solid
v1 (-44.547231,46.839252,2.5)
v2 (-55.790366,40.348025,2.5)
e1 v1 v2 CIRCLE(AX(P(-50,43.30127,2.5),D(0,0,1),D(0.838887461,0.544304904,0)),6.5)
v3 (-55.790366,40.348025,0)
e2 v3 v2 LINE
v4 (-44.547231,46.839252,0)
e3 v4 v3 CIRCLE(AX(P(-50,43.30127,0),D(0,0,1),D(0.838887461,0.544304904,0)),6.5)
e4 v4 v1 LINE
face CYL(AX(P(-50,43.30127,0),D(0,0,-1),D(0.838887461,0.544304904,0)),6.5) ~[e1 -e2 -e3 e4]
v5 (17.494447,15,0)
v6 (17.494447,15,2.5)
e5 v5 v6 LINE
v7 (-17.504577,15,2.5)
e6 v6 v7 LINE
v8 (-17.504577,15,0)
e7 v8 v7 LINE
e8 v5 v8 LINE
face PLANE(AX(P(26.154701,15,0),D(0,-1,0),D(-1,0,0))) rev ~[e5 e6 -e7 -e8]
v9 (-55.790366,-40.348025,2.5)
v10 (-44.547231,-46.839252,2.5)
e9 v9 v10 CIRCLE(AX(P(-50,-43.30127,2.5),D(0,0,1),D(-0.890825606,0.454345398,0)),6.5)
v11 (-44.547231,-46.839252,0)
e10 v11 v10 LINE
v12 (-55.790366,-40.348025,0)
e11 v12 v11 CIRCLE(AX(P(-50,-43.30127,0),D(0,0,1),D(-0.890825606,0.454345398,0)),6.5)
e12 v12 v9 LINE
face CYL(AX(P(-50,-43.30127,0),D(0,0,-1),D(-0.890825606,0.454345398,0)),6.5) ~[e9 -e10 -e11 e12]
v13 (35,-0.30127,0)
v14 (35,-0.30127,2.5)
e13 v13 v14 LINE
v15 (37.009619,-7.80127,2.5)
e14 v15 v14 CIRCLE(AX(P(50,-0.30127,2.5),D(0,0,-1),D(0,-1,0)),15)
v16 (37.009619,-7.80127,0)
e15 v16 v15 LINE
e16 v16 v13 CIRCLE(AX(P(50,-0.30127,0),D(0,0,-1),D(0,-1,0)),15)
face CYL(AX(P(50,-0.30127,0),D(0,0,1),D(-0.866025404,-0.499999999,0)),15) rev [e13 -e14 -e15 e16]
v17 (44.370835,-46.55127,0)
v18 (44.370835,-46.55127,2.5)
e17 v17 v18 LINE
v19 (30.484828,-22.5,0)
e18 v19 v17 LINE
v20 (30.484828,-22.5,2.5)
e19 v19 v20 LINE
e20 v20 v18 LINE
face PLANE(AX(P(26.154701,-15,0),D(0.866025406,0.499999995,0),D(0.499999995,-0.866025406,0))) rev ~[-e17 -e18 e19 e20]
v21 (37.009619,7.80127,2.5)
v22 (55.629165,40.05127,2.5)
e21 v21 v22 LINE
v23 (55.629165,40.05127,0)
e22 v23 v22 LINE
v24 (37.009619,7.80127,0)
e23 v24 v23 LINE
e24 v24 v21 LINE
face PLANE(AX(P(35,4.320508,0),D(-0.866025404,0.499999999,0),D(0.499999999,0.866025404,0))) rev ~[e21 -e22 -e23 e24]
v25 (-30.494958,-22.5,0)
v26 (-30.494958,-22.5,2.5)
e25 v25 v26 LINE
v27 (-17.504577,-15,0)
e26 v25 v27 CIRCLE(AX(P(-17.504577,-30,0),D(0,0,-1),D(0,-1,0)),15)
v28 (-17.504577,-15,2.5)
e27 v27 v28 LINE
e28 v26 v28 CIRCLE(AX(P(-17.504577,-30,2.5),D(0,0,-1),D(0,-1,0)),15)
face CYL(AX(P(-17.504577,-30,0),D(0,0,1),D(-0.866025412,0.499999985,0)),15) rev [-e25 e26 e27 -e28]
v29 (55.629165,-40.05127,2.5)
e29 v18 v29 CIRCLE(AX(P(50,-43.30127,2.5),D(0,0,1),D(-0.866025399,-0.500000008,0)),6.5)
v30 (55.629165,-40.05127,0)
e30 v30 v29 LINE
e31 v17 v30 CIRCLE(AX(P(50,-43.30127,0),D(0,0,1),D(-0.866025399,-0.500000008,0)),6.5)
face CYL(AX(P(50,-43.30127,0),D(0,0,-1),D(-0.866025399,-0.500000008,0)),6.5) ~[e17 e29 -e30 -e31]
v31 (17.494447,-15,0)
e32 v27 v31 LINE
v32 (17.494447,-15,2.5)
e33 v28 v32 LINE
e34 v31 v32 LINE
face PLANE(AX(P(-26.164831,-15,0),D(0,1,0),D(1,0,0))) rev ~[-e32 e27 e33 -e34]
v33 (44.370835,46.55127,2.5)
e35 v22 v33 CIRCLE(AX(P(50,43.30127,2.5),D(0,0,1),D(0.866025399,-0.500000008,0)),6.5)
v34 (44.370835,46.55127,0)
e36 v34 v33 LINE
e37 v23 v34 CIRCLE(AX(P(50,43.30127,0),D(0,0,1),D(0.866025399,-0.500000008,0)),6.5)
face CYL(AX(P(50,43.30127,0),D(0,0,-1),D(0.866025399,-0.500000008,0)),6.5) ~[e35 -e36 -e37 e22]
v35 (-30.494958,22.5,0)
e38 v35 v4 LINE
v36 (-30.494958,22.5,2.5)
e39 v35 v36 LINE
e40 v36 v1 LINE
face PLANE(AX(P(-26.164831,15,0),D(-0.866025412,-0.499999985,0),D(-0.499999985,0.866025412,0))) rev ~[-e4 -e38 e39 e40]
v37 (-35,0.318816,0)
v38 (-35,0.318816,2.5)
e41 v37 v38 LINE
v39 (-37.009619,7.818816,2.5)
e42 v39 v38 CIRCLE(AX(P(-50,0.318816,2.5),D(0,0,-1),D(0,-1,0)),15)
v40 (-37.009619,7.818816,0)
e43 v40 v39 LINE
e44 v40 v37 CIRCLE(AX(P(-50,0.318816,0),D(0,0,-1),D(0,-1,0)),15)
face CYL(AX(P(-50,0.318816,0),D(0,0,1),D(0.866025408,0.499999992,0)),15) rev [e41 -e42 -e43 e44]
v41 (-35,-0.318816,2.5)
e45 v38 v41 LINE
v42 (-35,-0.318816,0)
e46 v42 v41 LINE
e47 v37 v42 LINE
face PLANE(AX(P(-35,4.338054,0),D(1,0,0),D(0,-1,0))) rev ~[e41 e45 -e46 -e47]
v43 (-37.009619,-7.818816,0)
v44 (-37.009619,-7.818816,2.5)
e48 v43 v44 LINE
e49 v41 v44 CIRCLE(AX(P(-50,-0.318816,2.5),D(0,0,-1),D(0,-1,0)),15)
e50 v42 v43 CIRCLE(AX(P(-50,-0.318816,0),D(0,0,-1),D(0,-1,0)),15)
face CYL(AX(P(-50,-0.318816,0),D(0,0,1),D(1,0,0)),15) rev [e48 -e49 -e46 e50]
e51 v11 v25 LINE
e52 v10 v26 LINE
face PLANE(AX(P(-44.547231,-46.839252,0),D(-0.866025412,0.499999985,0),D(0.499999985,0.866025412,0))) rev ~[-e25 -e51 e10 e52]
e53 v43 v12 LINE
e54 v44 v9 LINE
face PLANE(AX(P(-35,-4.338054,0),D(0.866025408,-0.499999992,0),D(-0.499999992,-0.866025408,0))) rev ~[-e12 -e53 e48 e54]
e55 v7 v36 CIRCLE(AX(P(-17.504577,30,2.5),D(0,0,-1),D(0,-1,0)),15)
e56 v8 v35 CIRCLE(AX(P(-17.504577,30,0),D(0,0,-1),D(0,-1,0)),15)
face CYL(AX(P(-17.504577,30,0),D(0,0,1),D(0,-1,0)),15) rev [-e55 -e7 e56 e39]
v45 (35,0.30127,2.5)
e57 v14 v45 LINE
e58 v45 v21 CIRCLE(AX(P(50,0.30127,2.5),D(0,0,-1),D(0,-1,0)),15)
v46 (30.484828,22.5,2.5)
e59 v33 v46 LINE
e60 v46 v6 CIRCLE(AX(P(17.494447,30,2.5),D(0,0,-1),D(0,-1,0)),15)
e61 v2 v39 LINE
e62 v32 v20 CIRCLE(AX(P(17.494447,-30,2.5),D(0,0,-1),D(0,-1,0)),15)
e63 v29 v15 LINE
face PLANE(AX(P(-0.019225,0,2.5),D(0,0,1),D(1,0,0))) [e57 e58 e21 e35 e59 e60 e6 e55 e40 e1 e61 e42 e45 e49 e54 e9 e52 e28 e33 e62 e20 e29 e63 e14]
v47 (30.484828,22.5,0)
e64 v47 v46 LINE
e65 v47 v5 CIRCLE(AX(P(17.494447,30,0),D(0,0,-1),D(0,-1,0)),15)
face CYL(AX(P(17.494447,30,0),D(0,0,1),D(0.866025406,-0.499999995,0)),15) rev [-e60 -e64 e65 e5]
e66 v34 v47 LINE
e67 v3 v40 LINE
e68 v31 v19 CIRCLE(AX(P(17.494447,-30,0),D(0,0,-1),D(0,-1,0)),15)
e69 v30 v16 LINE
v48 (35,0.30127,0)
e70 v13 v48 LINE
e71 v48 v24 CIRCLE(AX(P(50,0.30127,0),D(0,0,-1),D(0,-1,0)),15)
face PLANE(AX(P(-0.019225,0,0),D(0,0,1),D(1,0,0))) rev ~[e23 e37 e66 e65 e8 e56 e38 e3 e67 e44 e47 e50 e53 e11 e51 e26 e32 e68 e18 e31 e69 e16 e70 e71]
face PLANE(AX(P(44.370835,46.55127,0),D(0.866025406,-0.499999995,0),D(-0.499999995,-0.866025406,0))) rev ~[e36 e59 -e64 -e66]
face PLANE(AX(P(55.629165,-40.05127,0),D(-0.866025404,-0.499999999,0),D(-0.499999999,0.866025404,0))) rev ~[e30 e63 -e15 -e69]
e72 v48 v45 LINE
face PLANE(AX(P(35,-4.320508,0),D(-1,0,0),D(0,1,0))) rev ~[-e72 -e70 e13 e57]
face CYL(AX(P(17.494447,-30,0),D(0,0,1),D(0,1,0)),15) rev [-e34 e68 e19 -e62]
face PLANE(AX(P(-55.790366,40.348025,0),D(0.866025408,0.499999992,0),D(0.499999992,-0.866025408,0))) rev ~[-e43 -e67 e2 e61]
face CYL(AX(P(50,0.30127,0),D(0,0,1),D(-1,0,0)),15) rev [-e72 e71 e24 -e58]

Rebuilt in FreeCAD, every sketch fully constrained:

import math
import FreeCAD as App
import Part
import Sketcher
Q = App.Units.Quantity


def edges_at(feature, points):
    """Names of the edges that pass closest to the given points."""
    edges = feature.Shape.Edges
    near = lambda p: min(range(len(edges)), key=lambda i: edges[i].distToShape(Part.Vertex(*p))[0])
    return sorted({f"Edge{near(p) + 1}" for p in points})

doc = App.newDocument("Part")
body = doc.addObject("PartDesign::Body", "Body")

# Sketch on XY plane
sketch1 = body.newObject("Sketcher::SketchObject", "Sketch")
sketch1.AttachmentSupport = (doc.getObject("XY_Plane"), [""])
sketch1.MapMode = "FlatFace"
sketch1.addGeometry([
    Part.ArcOfCircle(Part.Circle(App.Vector(-50, 43, 0), App.Vector(0, 0, 1), 7), math.radians(33), math.radians(207)),  # 0
    Part.LineSegment(App.Vector(-56, 40, 0), App.Vector(-35, 4, 0)),  # 1
    Part.LineSegment(App.Vector(-35, 4, 0), App.Vector(-35, -4, 0)),  # 2
    Part.LineSegment(App.Vector(-35, -4, 0), App.Vector(-56, -40, 0)),  # 3
    Part.ArcOfCircle(Part.Circle(App.Vector(-50, -43, 0), App.Vector(0, 0, 1), 7), math.radians(153), math.radians(327)),  # 4
    Part.LineSegment(App.Vector(-45, -47, 0), App.Vector(-26, -15, 0)),  # 5
    Part.LineSegment(App.Vector(-26, -15, 0), App.Vector(26, -15, 0)),  # 6
    Part.LineSegment(App.Vector(26, -15, 0), App.Vector(44, -47, 0)),  # 7
    Part.ArcOfCircle(Part.Circle(App.Vector(50, -43, 0), App.Vector(0, 0, 1), 6), math.radians(-150), math.radians(30)),  # 8
    Part.LineSegment(App.Vector(56, -40, 0), App.Vector(35, -4, 0)),  # 9
    Part.LineSegment(App.Vector(35, -4, 0), App.Vector(35, 4, 0)),  # 10
    Part.LineSegment(App.Vector(35, 4, 0), App.Vector(56, 40, 0)),  # 11
    Part.ArcOfCircle(Part.Circle(App.Vector(50, 43, 0), App.Vector(0, 0, 1), 6), math.radians(-30), math.radians(150)),  # 12
    Part.LineSegment(App.Vector(44, 47, 0), App.Vector(26, 15, 0)),  # 13
    Part.LineSegment(App.Vector(26, 15, 0), App.Vector(-26, 15, 0)),  # 14
    Part.LineSegment(App.Vector(-26, 15, 0), App.Vector(-45, 47, 0)),  # 15
], False)
sketch1.addConstraint([
    Sketcher.Constraint("Coincident", 0, 2, 1, 1),
    Sketcher.Constraint("Coincident", 1, 2, 2, 1),
    Sketcher.Constraint("Coincident", 2, 2, 3, 1),
    Sketcher.Constraint("Coincident", 3, 2, 4, 1),
    Sketcher.Constraint("Coincident", 4, 2, 5, 1),
    Sketcher.Constraint("Coincident", 5, 2, 6, 1),
    Sketcher.Constraint("Coincident", 6, 2, 7, 1),
    Sketcher.Constraint("Tangent", 7, 2, 8, 1),
    Sketcher.Constraint("Tangent", 8, 2, 9, 1),
    Sketcher.Constraint("Coincident", 9, 2, 10, 1),
    Sketcher.Constraint("Coincident", 10, 2, 11, 1),
    Sketcher.Constraint("Tangent", 11, 2, 12, 1),
    Sketcher.Constraint("Tangent", 12, 2, 13, 1),
    Sketcher.Constraint("Coincident", 13, 2, 14, 1),
    Sketcher.Constraint("Coincident", 14, 2, 15, 1),
    Sketcher.Constraint("Coincident", 15, 2, 0, 1),
    Sketcher.Constraint("Vertical", 2),
    Sketcher.Constraint("Horizontal", 6),
    Sketcher.Constraint("Vertical", 10),
    Sketcher.Constraint("Horizontal", 14),
    Sketcher.Constraint("Equal", 0, 4),
    Sketcher.Constraint("Equal", 4, 8),
    Sketcher.Constraint("Equal", 8, 12),
    Sketcher.Constraint("Symmetric", 0, 3, 8, 3, -1, 1),
    Sketcher.Constraint("Symmetric", 4, 3, 12, 3, -1, 1),
    Sketcher.Constraint("Symmetric", 4, 3, 8, 3, -2),
    Sketcher.Constraint("Symmetric", 6, 2, 13, 2, -1),
    Sketcher.Constraint("Parallel", 3, 5),
    Sketcher.Constraint("Parallel", 1, 7),
    Sketcher.Constraint("Parallel", 7, 9),
    Sketcher.Constraint("Parallel", 5, 11),
    Sketcher.Constraint("Parallel", 11, 13),
    Sketcher.Constraint("Parallel", 9, 15),
    Sketcher.Constraint("Vertical", 0, 2, 3, 2),
    Sketcher.Constraint("Vertical", 5, 2, 14, 2),
    Sketcher.Constraint("Radius", 0, Q("6.5 mm")),
    Sketcher.Constraint("Angle", 1, Q("-60.000001 deg")),
    Sketcher.Constraint("DistanceX", 0, 3, -1, 1, Q("50 mm")),
    Sketcher.Constraint("DistanceX", 1, 2, -1, 1, Q("35 mm")),
    Sketcher.Constraint("DistanceY", 5, 2, -1, 1, Q("15 mm")),
    Sketcher.Constraint("DistanceX", -1, 1, 9, 2, Q("35 mm")),
    Sketcher.Constraint("Distance", 5, Q("36.764801 mm")),
    Sketcher.Constraint("DistanceX", 6, 1, 6, 2, Q("52.319532 mm")),
    Sketcher.Constraint("DistanceY", 4, 2, 2, 2, Q("42.501198 mm")),
])
pad1 = body.newObject("PartDesign::Pad", "Pad")
pad1.Profile = sketch1
pad1.Length = 2.5
doc.recompute()

fillet = body.newObject("PartDesign::Fillet", "Fillet")
fillet.Base = (pad1, edges_at(pad1, [
    (26.155, 15, 1.25),
    (-26.165, 15, 1.25),
    (26.155, -15, 1.25),
    (-26.165, -15, 1.25),
    (-35, -4.338, 1.25),
    (-35, 4.338, 1.25),
    (35, -4.321, 1.25),
    (35, 4.321, 1.25),
]))
fillet.Radius = 15

doc.recompute()
